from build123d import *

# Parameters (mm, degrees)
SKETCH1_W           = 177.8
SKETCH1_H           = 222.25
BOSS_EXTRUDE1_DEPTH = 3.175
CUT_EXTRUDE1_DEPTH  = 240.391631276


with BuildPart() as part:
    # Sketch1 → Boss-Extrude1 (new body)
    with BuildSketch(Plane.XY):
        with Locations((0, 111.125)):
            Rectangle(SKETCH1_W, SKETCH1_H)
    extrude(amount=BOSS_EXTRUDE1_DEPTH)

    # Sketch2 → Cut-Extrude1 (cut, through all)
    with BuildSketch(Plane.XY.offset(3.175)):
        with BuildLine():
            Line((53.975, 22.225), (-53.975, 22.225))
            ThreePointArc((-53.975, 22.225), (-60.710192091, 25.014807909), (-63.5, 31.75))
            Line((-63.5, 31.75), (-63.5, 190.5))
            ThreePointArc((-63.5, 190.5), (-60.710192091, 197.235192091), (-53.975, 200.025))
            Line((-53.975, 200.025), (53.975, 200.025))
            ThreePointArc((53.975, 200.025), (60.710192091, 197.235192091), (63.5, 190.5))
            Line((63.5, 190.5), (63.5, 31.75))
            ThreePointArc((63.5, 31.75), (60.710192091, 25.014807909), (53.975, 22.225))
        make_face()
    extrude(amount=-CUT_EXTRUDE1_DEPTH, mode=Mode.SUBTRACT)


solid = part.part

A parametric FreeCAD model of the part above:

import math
import FreeCAD as App
import Part
import Sketcher
from FreeCAD import Vector
Q = App.Units.Quantity


def add_polygon(sketch, points):
    """Adds a closed chain of lines whose ends are joined by coincident constraints."""
    first, n = sketch.GeometryCount, len(points)
    for a, b in zip(points, points[1:] + points[:1]):
        sketch.addGeometry(Part.LineSegment(App.Vector(*a, 0), App.Vector(*b, 0)), False)
    for i in range(n):
        sketch.addConstraint(Sketcher.Constraint("Coincident", first + i, 2, first + (i + 1) % n, 1))

doc = App.newDocument("Part")
body = doc.addObject("PartDesign::Body", "Body")

sketch1 = body.newObject("Sketcher::SketchObject", "Sketch")
sketch1.AttachmentSupport = (doc.getObject("XY_Plane"), [""])
sketch1.MapMode = "FlatFace"
add_polygon(sketch1, [(-89, 222), (-89, 0), (89, 0), (89, 222)])
sketch1.addConstraint(Sketcher.Constraint("Vertical", 0))
sketch1.addConstraint(Sketcher.Constraint("Horizontal", 1))
sketch1.addConstraint(Sketcher.Constraint("Vertical", 2))
sketch1.addConstraint(Sketcher.Constraint("Horizontal", 3))
sketch1.addConstraint(Sketcher.Constraint("Symmetric", 0, 2, 1, 2, -1, 1))
sketch1.addConstraint(Sketcher.Constraint("DistanceX", 1, 1, 1, 2, Q("7 in")))
sketch1.addConstraint(Sketcher.Constraint("DistanceY", 0, 2, 0, 1, Q("8.75 in")))
pad1 = body.newObject("PartDesign::Pad", "Pad")
pad1.Profile = sketch1
pad1.Length = Q("0.125 in")

sketch2 = body.newObject("Sketcher::SketchObject", "Sketch001")
sketch2.AttachmentSupport = (doc.getObject("XY_Plane"), [""])
sketch2.MapMode = "FlatFace"
sketch2.AttachmentOffset = App.Placement(Vector(0, 0, 0.125 * 25.4), App.Rotation())
sketch2.addGeometry(Part.LineSegment(Vector(-54, 22, 0), Vector(54, 22, 0)), False)
sketch2.addGeometry(Part.ArcOfCircle(Part.Circle(Vector(54, 32, 0), Vector(0, 0, 1), 10), math.radians(-90), math.radians(0)), False)
sketch2.addGeometry(Part.LineSegment(Vector(64, 32, 0), Vector(64, 190, 0)), False)
sketch2.addGeometry(Part.ArcOfCircle(Part.Circle(Vector(54, 191, 0), Vector(0, 0, 1), 10), math.radians(0), math.radians(90)), False)
sketch2.addGeometry(Part.LineSegment(Vector(54, 200, 0), Vector(-54, 200, 0)), False)
sketch2.addGeometry(Part.ArcOfCircle(Part.Circle(Vector(-54, 191, 0), Vector(0, 0, 1), 10), math.radians(90), math.radians(180)), False)
sketch2.addGeometry(Part.LineSegment(Vector(-64, 190, 0), Vector(-64, 32, 0)), False)
sketch2.addGeometry(Part.ArcOfCircle(Part.Circle(Vector(-54, 32, 0), Vector(0, 0, 1), 10), math.radians(180), math.radians(270)), False)
sketch2.addConstraint(Sketcher.Constraint("Tangent", 0, 2, 1, 1))
sketch2.addConstraint(Sketcher.Constraint("Tangent", 1, 2, 2, 1))
sketch2.addConstraint(Sketcher.Constraint("Tangent", 2, 2, 3, 1))
sketch2.addConstraint(Sketcher.Constraint("Tangent", 3, 2, 4, 1))
sketch2.addConstraint(Sketcher.Constraint("Tangent", 4, 2, 5, 1))
sketch2.addConstraint(Sketcher.Constraint("Tangent", 5, 2, 6, 1))
sketch2.addConstraint(Sketcher.Constraint("Tangent", 6, 2, 7, 1))
sketch2.addConstraint(Sketcher.Constraint("Tangent", 7, 2, 0, 1))
sketch2.addConstraint(Sketcher.Constraint("Horizontal", 0))
sketch2.addConstraint(Sketcher.Constraint("Vertical", 2))
sketch2.addConstraint(Sketcher.Constraint("Horizontal", 4))
sketch2.addConstraint(Sketcher.Constraint("Vertical", 6))
sketch2.addConstraint(Sketcher.Constraint("Equal", 1, 3))
sketch2.addConstraint(Sketcher.Constraint("Equal", 3, 5))
sketch2.addConstraint(Sketcher.Constraint("Equal", 5, 7))
sketch2.addConstraint(Sketcher.Constraint("Radius", 1, Q("0.375 in")))
sketch2.addConstraint(Sketcher.Constraint("DistanceX", 5, 2, 2, 2, Q("5 in")))
sketch2.addConstraint(Sketcher.Constraint("DistanceY", 2, 1, 2, 2, Q("6.25 in")))
sketch2.addConstraint(Sketcher.Constraint("DistanceY", -1, 1, 3, 3, Q("7.5 in")))
sketch2.addConstraint(Sketcher.Constraint("DistanceX", -1, 1, 1, 2, Q("2.5 in")))
pocket1 = body.newObject("PartDesign::Pocket", "Pocket")
pocket1.Profile = sketch2
pocket1.Type = "ThroughAll"

doc.recompute()
